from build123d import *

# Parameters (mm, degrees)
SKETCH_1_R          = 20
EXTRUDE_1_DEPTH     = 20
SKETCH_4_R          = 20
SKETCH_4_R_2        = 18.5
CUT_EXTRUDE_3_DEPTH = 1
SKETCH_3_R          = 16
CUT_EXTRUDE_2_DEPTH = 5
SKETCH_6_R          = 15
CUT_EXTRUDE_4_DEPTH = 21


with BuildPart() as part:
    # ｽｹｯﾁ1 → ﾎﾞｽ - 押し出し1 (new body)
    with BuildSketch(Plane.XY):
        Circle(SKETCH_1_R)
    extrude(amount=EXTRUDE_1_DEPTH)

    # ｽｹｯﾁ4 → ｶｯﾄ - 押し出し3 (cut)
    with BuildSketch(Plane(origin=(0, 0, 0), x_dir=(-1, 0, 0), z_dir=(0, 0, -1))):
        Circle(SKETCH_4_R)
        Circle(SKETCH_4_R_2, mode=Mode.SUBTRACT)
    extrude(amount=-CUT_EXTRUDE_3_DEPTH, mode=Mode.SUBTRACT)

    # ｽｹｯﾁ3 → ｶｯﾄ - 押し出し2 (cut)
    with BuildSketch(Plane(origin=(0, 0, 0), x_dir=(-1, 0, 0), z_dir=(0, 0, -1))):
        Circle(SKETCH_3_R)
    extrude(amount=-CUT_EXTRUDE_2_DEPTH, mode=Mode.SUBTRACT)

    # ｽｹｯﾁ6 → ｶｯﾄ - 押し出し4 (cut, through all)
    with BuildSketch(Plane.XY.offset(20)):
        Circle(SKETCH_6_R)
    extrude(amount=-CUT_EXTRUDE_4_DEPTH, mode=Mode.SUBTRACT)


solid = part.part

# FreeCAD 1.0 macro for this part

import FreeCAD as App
import Part
import Sketcher

V = App.Vector
Q = App.Units.Quantity

doc = App.newDocument("Part")
params = doc.addObject("Spreadsheet::Sheet", "Params")
for row, (alias, value) in enumerate([
    ("sketch1_diameter", "40 mm"),
    ("pad1_length", "20 mm"),
    ("sketch2_diameter", "40 mm"),
    ("sketch2_diameter2", "37 mm"),
    ("pocket1_length", "1 mm"),
    ("sketch3_diameter", "32 mm"),
    ("pocket2_length", "5 mm"),
    ("sketch4_diameter", "30 mm"),
], start=1):
    params.set(f"A{row}", alias)
    params.set(f"B{row}", "=" + value)
    params.setAlias(f"B{row}", alias)

body = doc.addObject("PartDesign::Body", "Body")

# Sketch on XY plane
sketch1 = body.newObject("Sketcher::SketchObject", "Sketch")
sketch1.AttachmentSupport = (doc.getObject("XY_Plane"), [""])
sketch1.MapMode = "FlatFace"
sketch1.addGeometry(Part.Circle(V(0, 0, 0), V(0, 0, 1), 20), False)
sketch1.addConstraint(Sketcher.Constraint("Coincident", 0, 3, -1, 1))
sketch1.addConstraint(Sketcher.Constraint("Diameter", 0, Q("40 mm")))
sketch1.setExpression("Constraints[1]", "Params.sketch1_diameter")
pad1 = body.newObject("PartDesign::Pad", "Pad")
pad1.Profile = sketch1
pad1.setExpression("Length", "Params.pad1_length")

# Sketch on XY plane
sketch2 = body.newObject("Sketcher::SketchObject", "Sketch001")
sketch2.AttachmentSupport = (doc.getObject("XY_Plane"), [""])
sketch2.MapMode = "FlatFace"
sketch2.addGeometry(Part.Circle(V(0, 0, 0), V(0, 0, 1), 20), False)
sketch2.addGeometry(Part.Circle(V(0, 0, 0), V(0, 0, 1), 18.5), False)
sketch2.addConstraint(Sketcher.Constraint("Coincident", 0, 3, -1, 1))
sketch2.addConstraint(Sketcher.Constraint("Coincident", 1, 3, -1, 1))
sketch2.addConstraint(Sketcher.Constraint("Diameter", 0, Q("40 mm")))
sketch2.addConstraint(Sketcher.Constraint("Diameter", 1, Q("37 mm")))
sketch2.setExpression("Constraints[2]", "Params.sketch2_diameter")
sketch2.setExpression("Constraints[3]", "Params.sketch2_diameter2")
pocket1 = body.newObject("PartDesign::Pocket", "Pocket")
pocket1.Profile = sketch2
pocket1.setExpression("Length", "Params.pocket1_length")
pocket1.Reversed = True

# Sketch on XY plane
sketch3 = body.newObject("Sketcher::SketchObject", "Sketch002")
sketch3.AttachmentSupport = (doc.getObject("XY_Plane"), [""])
sketch3.MapMode = "FlatFace"
sketch3.addGeometry(Part.Circle(V(0, 0, 0), V(0, 0, 1), 16), False)
sketch3.addConstraint(Sketcher.Constraint("Coincident", 0, 3, -1, 1))
sketch3.addConstraint(Sketcher.Constraint("Diameter", 0, Q("32 mm")))
sketch3.setExpression("Constraints[1]", "Params.sketch3_diameter")
pocket2 = body.newObject("PartDesign::Pocket", "Pocket001")
pocket2.Profile = sketch3
pocket2.setExpression("Length", "Params.pocket2_length")
pocket2.Reversed = True

# Sketch on XY plane
sketch4 = body.newObject("Sketcher::SketchObject", "Sketch003")
sketch4.AttachmentSupport = (doc.getObject("XY_Plane"), [""])
sketch4.MapMode = "FlatFace"
sketch4.AttachmentOffset = App.Placement(V(0, 0, 20), App.Rotation())
sketch4.addGeometry(Part.Circle(V(0, 0, 0), V(0, 0, 1), 15), False)
sketch4.addConstraint(Sketcher.Constraint("Coincident", 0, 3, -1, 1))
sketch4.addConstraint(Sketcher.Constraint("Diameter", 0, Q("30 mm")))
sketch4.setExpression("Constraints[1]", "Params.sketch4_diameter")
pocket3 = body.newObject("PartDesign::Pocket", "Pocket002")
pocket3.Profile = sketch4
pocket3.Type = "ThroughAll"

doc.recompute()
